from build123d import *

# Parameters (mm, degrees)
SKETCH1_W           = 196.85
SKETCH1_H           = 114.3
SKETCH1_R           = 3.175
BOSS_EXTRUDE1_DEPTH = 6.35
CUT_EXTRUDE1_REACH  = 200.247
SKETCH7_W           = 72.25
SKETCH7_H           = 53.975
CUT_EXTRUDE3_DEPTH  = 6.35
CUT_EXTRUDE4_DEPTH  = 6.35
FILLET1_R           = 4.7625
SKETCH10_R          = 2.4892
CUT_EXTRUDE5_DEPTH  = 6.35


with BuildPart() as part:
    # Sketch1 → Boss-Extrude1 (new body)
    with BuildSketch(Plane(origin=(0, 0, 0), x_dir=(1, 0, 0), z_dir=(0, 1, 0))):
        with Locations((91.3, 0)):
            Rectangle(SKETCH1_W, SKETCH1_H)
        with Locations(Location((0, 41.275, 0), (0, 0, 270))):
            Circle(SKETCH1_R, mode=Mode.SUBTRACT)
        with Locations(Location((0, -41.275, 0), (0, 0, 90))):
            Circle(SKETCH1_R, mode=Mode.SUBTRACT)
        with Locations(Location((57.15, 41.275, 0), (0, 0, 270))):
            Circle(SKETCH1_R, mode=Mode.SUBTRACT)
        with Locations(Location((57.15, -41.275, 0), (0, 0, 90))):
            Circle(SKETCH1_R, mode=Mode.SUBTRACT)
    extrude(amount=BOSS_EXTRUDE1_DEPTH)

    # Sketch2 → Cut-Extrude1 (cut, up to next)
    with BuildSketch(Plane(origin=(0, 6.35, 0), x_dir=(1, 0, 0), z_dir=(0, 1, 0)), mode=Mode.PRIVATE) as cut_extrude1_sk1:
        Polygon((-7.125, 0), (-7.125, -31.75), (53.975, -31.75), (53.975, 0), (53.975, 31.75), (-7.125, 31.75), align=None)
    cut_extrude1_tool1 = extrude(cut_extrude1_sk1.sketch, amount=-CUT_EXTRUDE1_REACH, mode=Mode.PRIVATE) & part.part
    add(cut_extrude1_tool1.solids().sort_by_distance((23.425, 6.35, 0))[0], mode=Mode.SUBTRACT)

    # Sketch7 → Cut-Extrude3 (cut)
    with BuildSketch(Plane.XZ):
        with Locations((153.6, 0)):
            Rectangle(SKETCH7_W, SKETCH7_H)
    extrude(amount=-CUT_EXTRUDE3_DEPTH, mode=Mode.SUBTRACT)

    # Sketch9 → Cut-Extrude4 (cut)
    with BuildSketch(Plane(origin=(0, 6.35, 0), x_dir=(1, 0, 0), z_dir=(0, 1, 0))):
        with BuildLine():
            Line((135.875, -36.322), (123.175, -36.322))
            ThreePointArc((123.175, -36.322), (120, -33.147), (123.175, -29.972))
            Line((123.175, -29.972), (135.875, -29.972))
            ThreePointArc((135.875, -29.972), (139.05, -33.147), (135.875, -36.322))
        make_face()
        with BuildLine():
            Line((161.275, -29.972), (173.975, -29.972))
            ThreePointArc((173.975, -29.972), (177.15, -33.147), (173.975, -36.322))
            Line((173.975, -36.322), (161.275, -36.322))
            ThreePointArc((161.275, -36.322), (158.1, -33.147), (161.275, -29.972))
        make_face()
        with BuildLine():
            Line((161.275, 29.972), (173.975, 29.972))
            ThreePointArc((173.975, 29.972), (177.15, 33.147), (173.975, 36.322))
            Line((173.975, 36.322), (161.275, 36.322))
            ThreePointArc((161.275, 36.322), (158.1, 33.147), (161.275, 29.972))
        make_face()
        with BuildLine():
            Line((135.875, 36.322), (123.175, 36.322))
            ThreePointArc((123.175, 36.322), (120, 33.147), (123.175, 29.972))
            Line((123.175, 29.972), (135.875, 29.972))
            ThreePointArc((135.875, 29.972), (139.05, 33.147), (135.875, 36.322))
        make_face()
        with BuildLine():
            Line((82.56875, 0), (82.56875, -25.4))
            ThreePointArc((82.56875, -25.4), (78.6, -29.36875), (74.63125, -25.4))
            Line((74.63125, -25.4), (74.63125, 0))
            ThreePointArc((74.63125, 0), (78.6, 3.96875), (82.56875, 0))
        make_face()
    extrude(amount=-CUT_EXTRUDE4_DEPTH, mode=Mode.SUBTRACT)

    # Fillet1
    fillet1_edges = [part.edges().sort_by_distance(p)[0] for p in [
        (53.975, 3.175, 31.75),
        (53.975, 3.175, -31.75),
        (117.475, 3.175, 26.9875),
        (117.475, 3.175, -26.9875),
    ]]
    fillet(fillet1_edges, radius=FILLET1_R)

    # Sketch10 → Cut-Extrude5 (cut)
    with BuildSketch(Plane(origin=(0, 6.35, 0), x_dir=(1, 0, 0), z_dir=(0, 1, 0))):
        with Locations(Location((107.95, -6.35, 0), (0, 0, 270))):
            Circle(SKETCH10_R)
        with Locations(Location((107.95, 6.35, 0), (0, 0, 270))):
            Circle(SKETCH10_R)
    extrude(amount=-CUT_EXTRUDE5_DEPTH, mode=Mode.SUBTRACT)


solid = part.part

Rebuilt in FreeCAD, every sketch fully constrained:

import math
import FreeCAD as App
import Part
import Sketcher
Q = App.Units.Quantity


def edges_at(feature, points):
    """Names of the edges that pass closest to the given points."""
    edges = feature.Shape.Edges
    near = lambda p: min(range(len(edges)), key=lambda i: edges[i].distToShape(Part.Vertex(*p))[0])
    return sorted({f"Edge{near(p) + 1}" for p in points})

doc = App.newDocument("Part")
body = doc.addObject("PartDesign::Body", "Body")

# Sketch on XZ plane
sketch1 = body.newObject("Sketcher::SketchObject", "Sketch")
sketch1.AttachmentSupport = (doc.getObject("XZ_Plane"), [""])
sketch1.MapMode = "FlatFace"
sketch1.addGeometry(Part.LineSegment(App.Vector(-7.125, -57.15, 0), App.Vector(-7.125, 57.15, 0)), False)
sketch1.addGeometry(Part.LineSegment(App.Vector(-7.125, 57.15, 0), App.Vector(189.725, 57.15, 0)), False)
sketch1.addGeometry(Part.LineSegment(App.Vector(189.725, 57.15, 0), App.Vector(189.725, -57.15, 0)), False)
sketch1.addGeometry(Part.LineSegment(App.Vector(189.725, -57.15, 0), App.Vector(-7.125, -57.15, 0)), False)
sketch1.addGeometry(Part.Circle(App.Vector(0, 41.275, 0), App.Vector(0, 0, 1), 3.175), False)
sketch1.addGeometry(Part.Circle(App.Vector(57.15, 41.275, 0), App.Vector(0, 0, 1), 3.175), False)
sketch1.addGeometry(Part.Circle(App.Vector(0, -41.275, 0), App.Vector(0, 0, 1), 3.175), False)
sketch1.addGeometry(Part.Circle(App.Vector(57.15, -41.275, 0), App.Vector(0, 0, 1), 3.175), False)
sketch1.addConstraint(Sketcher.Constraint("Coincident", 0, 2, 1, 1))
sketch1.addConstraint(Sketcher.Constraint("Coincident", 1, 2, 2, 1))
sketch1.addConstraint(Sketcher.Constraint("Coincident", 2, 2, 3, 1))
sketch1.addConstraint(Sketcher.Constraint("Coincident", 3, 2, 0, 1))
sketch1.addConstraint(Sketcher.Constraint("Vertical", 0))
sketch1.addConstraint(Sketcher.Constraint("Horizontal", 1))
sketch1.addConstraint(Sketcher.Constraint("Vertical", 2))
sketch1.addConstraint(Sketcher.Constraint("Horizontal", 3))
sketch1.addConstraint(Sketcher.Constraint("Equal", 4, 5))
sketch1.addConstraint(Sketcher.Constraint("Equal", 5, 6))
sketch1.addConstraint(Sketcher.Constraint("Equal", 6, 7))
sketch1.addConstraint(Sketcher.Constraint("Symmetric", 4, 3, 6, 3, -1, 1))
sketch1.addConstraint(Sketcher.Constraint("Symmetric", 5, 3, 7, 3, -1))
sketch1.addConstraint(Sketcher.Constraint("PointOnObject", 4, 3, -2))
sketch1.addConstraint(Sketcher.Constraint("Horizontal", 4, 3, 5, 3))
sketch1.addConstraint(Sketcher.Constraint("Diameter", 4, Q("0.25 in")))
sketch1.addConstraint(Sketcher.Constraint("DistanceY", 0, 1, 0, 2, Q("4.5 in")))
sketch1.addConstraint(Sketcher.Constraint("DistanceX", 1, 1, 1, 2, Q("7.75 in")))
sketch1.addConstraint(Sketcher.Constraint("DistanceX", -1, 1, 5, 3, Q("2.25 in")))
sketch1.addConstraint(Sketcher.Constraint("DistanceY", -1, 1, 0, 2, Q("2.25 in")))
sketch1.addConstraint(Sketcher.Constraint("DistanceY", 6, 3, 4, 3, Q("3.25 in")))
sketch1.addConstraint(Sketcher.Constraint("DistanceX", 0, 2, -1, 1, Q("7.125 mm")))
pad1 = body.newObject("PartDesign::Pad", "Pad")
pad1.Profile = sketch1
pad1.Length = Q("0.25 in")
pad1.Reversed = True

# Sketch on XZ plane
sketch2 = body.newObject("Sketcher::SketchObject", "Sketch001")
sketch2.AttachmentSupport = (doc.getObject("XZ_Plane"), [""])
sketch2.MapMode = "FlatFace"
sketch2.AttachmentOffset = App.Placement(App.Vector(0, 0, -0.25 * 25.4), App.Rotation())
sketch2.addGeometry(Part.LineSegment(App.Vector(-7.125, 31.75, 0), App.Vector(53.975, 31.75, 0)), False)
sketch2.addGeometry(Part.LineSegment(App.Vector(53.975, 31.75, 0), App.Vector(53.975, -31.75, 0)), False)
sketch2.addGeometry(Part.LineSegment(App.Vector(53.975, -31.75, 0), App.Vector(-7.125, -31.75, 0)), False)
sketch2.addGeometry(Part.LineSegment(App.Vector(-7.125, -31.75, 0), App.Vector(-7.125, 31.75, 0)), False)
sketch2.addConstraint(Sketcher.Constraint("Coincident", 0, 2, 1, 1))
sketch2.addConstraint(Sketcher.Constraint("Coincident", 1, 2, 2, 1))
sketch2.addConstraint(Sketcher.Constraint("Coincident", 2, 2, 3, 1))
sketch2.addConstraint(Sketcher.Constraint("Coincident", 3, 2, 0, 1))
sketch2.addConstraint(Sketcher.Constraint("Horizontal", 0))
sketch2.addConstraint(Sketcher.Constraint("Vertical", 1))
sketch2.addConstraint(Sketcher.Constraint("Horizontal", 2))
sketch2.addConstraint(Sketcher.Constraint("Vertical", 3))
sketch2.addConstraint(Sketcher.Constraint("DistanceY", 1, 2, 1, 1, Q("2.5 in")))
sketch2.addConstraint(Sketcher.Constraint("DistanceY", -1, 1, 0, 2, Q("1.25 in")))
sketch2.addConstraint(Sketcher.Constraint("DistanceX", -1, 1, 0, 2, Q("2.125 in")))
sketch2.addConstraint(Sketcher.Constraint("DistanceX", 0, 1, 0, 2, Q("61.1 mm")))
pocket1 = body.newObject("PartDesign::Pocket", "Pocket")
pocket1.Profile = sketch2
pocket1.Type = "UpToFirst"
pocket1.Reversed = True

# Sketch on XZ plane
sketch3 = body.newObject("Sketcher::SketchObject", "Sketch002")
sketch3.AttachmentSupport = (doc.getObject("XZ_Plane"), [""])
sketch3.MapMode = "FlatFace"
sketch3.addGeometry(Part.LineSegment(App.Vector(117.475, 26.9875, 0), App.Vector(117.475, -26.9875, 0)), False)
sketch3.addGeometry(Part.LineSegment(App.Vector(117.475, -26.9875, 0), App.Vector(189.725, -26.9875, 0)), False)
sketch3.addGeometry(Part.LineSegment(App.Vector(189.725, -26.9875, 0), App.Vector(189.725, 26.9875, 0)), False)
sketch3.addGeometry(Part.LineSegment(App.Vector(189.725, 26.9875, 0), App.Vector(117.475, 26.9875, 0)), False)
sketch3.addConstraint(Sketcher.Constraint("Coincident", 0, 2, 1, 1))
sketch3.addConstraint(Sketcher.Constraint("Coincident", 1, 2, 2, 1))
sketch3.addConstraint(Sketcher.Constraint("Coincident", 2, 2, 3, 1))
sketch3.addConstraint(Sketcher.Constraint("Coincident", 3, 2, 0, 1))
sketch3.addConstraint(Sketcher.Constraint("Vertical", 0))
sketch3.addConstraint(Sketcher.Constraint("Horizontal", 1))
sketch3.addConstraint(Sketcher.Constraint("Vertical", 2))
sketch3.addConstraint(Sketcher.Constraint("Horizontal", 3))
sketch3.addConstraint(Sketcher.Constraint("DistanceY", 0, 2, 0, 1, Q("2.125 in")))
sketch3.addConstraint(Sketcher.Constraint("DistanceX", -1, 1, 0, 2, Q("4.625 in")))
sketch3.addConstraint(Sketcher.Constraint("DistanceY", 0, 2, -1, 1, Q("1.0625 in")))
sketch3.addConstraint(Sketcher.Constraint("DistanceX", 1, 1, 1, 2, Q("72.25 mm")))
pocket2 = body.newObject("PartDesign::Pocket", "Pocket001")
pocket2.Profile = sketch3
pocket2.Length = Q("0.25 in")

# Sketch on XZ plane
sketch4 = body.newObject("Sketcher::SketchObject", "Sketch003")
sketch4.AttachmentSupport = (doc.getObject("XZ_Plane"), [""])
sketch4.MapMode = "FlatFace"
sketch4.AttachmentOffset = App.Placement(App.Vector(0, 0, -0.25 * 25.4), App.Rotation())
sketch4.addGeometry(Part.LineSegment(App.Vector(123.175, 36.322, 0), App.Vector(135.875, 36.322, 0)), False)
sketch4.addGeometry(Part.ArcOfCircle(Part.Circle(App.Vector(135.875, 33.147, 0), App.Vector(0, 0, 1), 3.175), math.radians(-90), math.radians(90)), False)
sketch4.addGeometry(Part.LineSegment(App.Vector(135.875, 29.972, 0), App.Vector(123.175, 29.972, 0)), False)
sketch4.addGeometry(Part.ArcOfCircle(Part.Circle(App.Vector(123.175, 33.147, 0), App.Vector(0, 0, 1), 3.175), math.radians(90), math.radians(270)), False)
sketch4.addGeometry(Part.LineSegment(App.Vector(173.975, 29.972, 0), App.Vector(161.275, 29.972, 0)), False)
sketch4.addGeometry(Part.ArcOfCircle(Part.Circle(App.Vector(161.275, 33.147, 0), App.Vector(0, 0, 1), 3.175), math.radians(90), math.radians(270)), False)
sketch4.addGeometry(Part.LineSegment(App.Vector(161.275, 36.322, 0), App.Vector(173.975, 36.322, 0)), False)
sketch4.addGeometry(Part.ArcOfCircle(Part.Circle(App.Vector(173.975, 33.147, 0), App.Vector(0, 0, 1), 3.175), math.radians(-90), math.radians(90)), False)
sketch4.addGeometry(Part.LineSegment(App.Vector(161.275, -29.972, 0), App.Vector(173.975, -29.972, 0)), False)
sketch4.addGeometry(Part.ArcOfCircle(Part.Circle(App.Vector(173.975, -33.147, 0), App.Vector(0, 0, 1), 3.175), math.radians(-90), math.radians(90)), False)
sketch4.addGeometry(Part.LineSegment(App.Vector(173.975, -36.322, 0), App.Vector(161.275, -36.322, 0)), False)
sketch4.addGeometry(Part.ArcOfCircle(Part.Circle(App.Vector(161.275, -33.147, 0), App.Vector(0, 0, 1), 3.175), math.radians(90), math.radians(270)), False)
sketch4.addGeometry(Part.LineSegment(App.Vector(135.875, -36.322, 0), App.Vector(123.175, -36.322, 0)), False)
sketch4.addGeometry(Part.ArcOfCircle(Part.Circle(App.Vector(123.175, -33.147, 0), App.Vector(0, 0, 1), 3.175), math.radians(90), math.radians(270)), False)
sketch4.addGeometry(Part.LineSegment(App.Vector(123.175, -29.972, 0), App.Vector(135.875, -29.972, 0)), False)
sketch4.addGeometry(Part.ArcOfCircle(Part.Circle(App.Vector(135.875, -33.147, 0), App.Vector(0, 0, 1), 3.175), math.radians(-90), math.radians(90)), False)
sketch4.addGeometry(Part.LineSegment(App.Vector(82.56875, 25.4, 0), App.Vector(82.56875, 0, 0)), False)
sketch4.addGeometry(Part.ArcOfCircle(Part.Circle(App.Vector(78.6, 0, 0), App.Vector(0, 0, 1), 3.96875), math.radians(180), math.radians(360)), False)
sketch4.addGeometry(Part.LineSegment(App.Vector(74.63125, 0, 0), App.Vector(74.63125, 25.4, 0)), False)
sketch4.addGeometry(Part.ArcOfCircle(Part.Circle(App.Vector(78.6, 25.4, 0), App.Vector(0, 0, 1), 3.96875), math.radians(0), math.radians(180)), False)
sketch4.addConstraint(Sketcher.Constraint("Tangent", 0, 2, 1, 2))
sketch4.addConstraint(Sketcher.Constraint("Tangent", 1, 1, 2, 1))
sketch4.addConstraint(Sketcher.Constraint("Tangent", 2, 2, 3, 2))
sketch4.addConstraint(Sketcher.Constraint("Tangent", 3, 1, 0, 1))
sketch4.addConstraint(Sketcher.Constraint("Tangent", 4, 2, 5, 2))
sketch4.addConstraint(Sketcher.Constraint("Tangent", 5, 1, 6, 1))
sketch4.addConstraint(Sketcher.Constraint("Tangent", 6, 2, 7, 2))
sketch4.addConstraint(Sketcher.Constraint("Tangent", 7, 1, 4, 1))
sketch4.addConstraint(Sketcher.Constraint("Tangent", 8, 2, 9, 2))
sketch4.addConstraint(Sketcher.Constraint("Tangent", 9, 1, 10, 1))
sketch4.addConstraint(Sketcher.Constraint("Tangent", 10, 2, 11, 2))
sketch4.addConstraint(Sketcher.Constraint("Tangent", 11, 1, 8, 1))
sketch4.addConstraint(Sketcher.Constraint("Tangent", 12, 2, 13, 2))
sketch4.addConstraint(Sketcher.Constraint("Tangent", 13, 1, 14, 1))
sketch4.addConstraint(Sketcher.Constraint("Tangent", 14, 2, 15, 2))
sketch4.addConstraint(Sketcher.Constraint("Tangent", 15, 1, 12, 1))
sketch4.addConstraint(Sketcher.Constraint("Tangent", 16, 2, 17, 2))
sketch4.addConstraint(Sketcher.Constraint("Tangent", 17, 1, 18, 1))
sketch4.addConstraint(Sketcher.Constraint("Tangent", 18, 2, 19, 2))
sketch4.addConstraint(Sketcher.Constraint("Tangent", 19, 1, 16, 1))
sketch4.addConstraint(Sketcher.Constraint("Horizontal", 0))
sketch4.addConstraint(Sketcher.Constraint("Horizontal", 2))
sketch4.addConstraint(Sketcher.Constraint("Horizontal", 4))
sketch4.addConstraint(Sketcher.Constraint("Horizontal", 6))
sketch4.addConstraint(Sketcher.Constraint("Horizontal", 8))
sketch4.addConstraint(Sketcher.Constraint("Horizontal", 10))
sketch4.addConstraint(Sketcher.Constraint("Horizontal", 12))
sketch4.addConstraint(Sketcher.Constraint("Horizontal", 14))
sketch4.addConstraint(Sketcher.Constraint("Vertical", 16))
sketch4.addConstraint(Sketcher.Constraint("Vertical", 18))
sketch4.addConstraint(Sketcher.Constraint("Equal", 3, 5))
sketch4.addConstraint(Sketcher.Constraint("Equal", 7, 9))
sketch4.addConstraint(Sketcher.Constraint("Equal", 11, 13))
sketch4.addConstraint(Sketcher.Constraint("Symmetric", 7, 3, 9, 3, -1))
sketch4.addConstraint(Sketcher.Constraint("Symmetric", 3, 3, 13, 3, -1))
sketch4.addConstraint(Sketcher.Constraint("PointOnObject", 17, 3, -1))
sketch4.addConstraint(Sketcher.Constraint("Horizontal", 3, 3, 5, 3))
sketch4.addConstraint(Sketcher.Constraint("Vertical", 5, 3, 11, 3))
sketch4.addConstraint(Sketcher.Constraint("Vertical", 1, 3, 15, 3))
sketch4.addConstraint(Sketcher.Constraint("Equal", 2, 4))
sketch4.addConstraint(Sketcher.Constraint("DistanceY", 16, 2, 16, 1, Q("1 in")))
sketch4.addConstraint(Sketcher.Constraint("DistanceX", 0, 1, 0, 2, Q("0.5 in")))
sketch4.addConstraint(Sketcher.Constraint("Radius", 1, Q("0.125 in")))
sketch4.addConstraint(Sketcher.Constraint("Radius", 17, Q("0.15625 in")))
sketch4.addConstraint(Sketcher.Constraint("DistanceX", 1, 3, 5, 3, Q("1 in")))
sketch4.addConstraint(Sketcher.Constraint("DistanceY", -1, 1, 0, 2, Q("1.43 in")))
sketch4.addConstraint(Sketcher.Constraint("DistanceX", -1, 1, 1, 3, Q("135.875 mm")))
sketch4.addConstraint(Sketcher.Constraint("DistanceX", -1, 1, 17, 3, Q("78.6 mm")))
pocket3 = body.newObject("PartDesign::Pocket", "Pocket002")
pocket3.Profile = sketch4
pocket3.Length = Q("0.25 in")
pocket3.Reversed = True
doc.recompute()

fillet = body.newObject("PartDesign::Fillet", "Fillet")
fillet.Base = (pocket3, edges_at(pocket3, [
    (53.975, 3.175, 31.75),
    (53.975, 3.175, -31.75),
    (117.475, 3.175, 26.988),
    (117.475, 3.175, -26.988),
]))
fillet.Radius = Q("0.1875 in")

# Sketch on XZ plane
sketch5 = body.newObject("Sketcher::SketchObject", "Sketch004")
sketch5.AttachmentSupport = (doc.getObject("XZ_Plane"), [""])
sketch5.MapMode = "FlatFace"
sketch5.AttachmentOffset = App.Placement(App.Vector(0, 0, -0.25 * 25.4), App.Rotation())
sketch5.addGeometry(Part.Circle(App.Vector(107.95, 6.35, 0), App.Vector(0, 0, 1), 2.4892), False)
sketch5.addGeometry(Part.Circle(App.Vector(107.95, -6.35, 0), App.Vector(0, 0, 1), 2.4892), False)
sketch5.addConstraint(Sketcher.Constraint("Equal", 0, 1))
sketch5.addConstraint(Sketcher.Constraint("Symmetric", 0, 3, 1, 3, -1))
sketch5.addConstraint(Sketcher.Constraint("Diameter", 0, Q("0.196 in")))
sketch5.addConstraint(Sketcher.Constraint("DistanceY", 1, 3, 0, 3, Q("0.5 in")))
sketch5.addConstraint(Sketcher.Constraint("DistanceX", -1, 1, 0, 3, Q("4.25 in")))
pocket4 = body.newObject("PartDesign::Pocket", "Pocket003")
pocket4.Profile = sketch5
pocket4.Length = Q("0.25 in")
pocket4.Reversed = True

doc.recompute()
